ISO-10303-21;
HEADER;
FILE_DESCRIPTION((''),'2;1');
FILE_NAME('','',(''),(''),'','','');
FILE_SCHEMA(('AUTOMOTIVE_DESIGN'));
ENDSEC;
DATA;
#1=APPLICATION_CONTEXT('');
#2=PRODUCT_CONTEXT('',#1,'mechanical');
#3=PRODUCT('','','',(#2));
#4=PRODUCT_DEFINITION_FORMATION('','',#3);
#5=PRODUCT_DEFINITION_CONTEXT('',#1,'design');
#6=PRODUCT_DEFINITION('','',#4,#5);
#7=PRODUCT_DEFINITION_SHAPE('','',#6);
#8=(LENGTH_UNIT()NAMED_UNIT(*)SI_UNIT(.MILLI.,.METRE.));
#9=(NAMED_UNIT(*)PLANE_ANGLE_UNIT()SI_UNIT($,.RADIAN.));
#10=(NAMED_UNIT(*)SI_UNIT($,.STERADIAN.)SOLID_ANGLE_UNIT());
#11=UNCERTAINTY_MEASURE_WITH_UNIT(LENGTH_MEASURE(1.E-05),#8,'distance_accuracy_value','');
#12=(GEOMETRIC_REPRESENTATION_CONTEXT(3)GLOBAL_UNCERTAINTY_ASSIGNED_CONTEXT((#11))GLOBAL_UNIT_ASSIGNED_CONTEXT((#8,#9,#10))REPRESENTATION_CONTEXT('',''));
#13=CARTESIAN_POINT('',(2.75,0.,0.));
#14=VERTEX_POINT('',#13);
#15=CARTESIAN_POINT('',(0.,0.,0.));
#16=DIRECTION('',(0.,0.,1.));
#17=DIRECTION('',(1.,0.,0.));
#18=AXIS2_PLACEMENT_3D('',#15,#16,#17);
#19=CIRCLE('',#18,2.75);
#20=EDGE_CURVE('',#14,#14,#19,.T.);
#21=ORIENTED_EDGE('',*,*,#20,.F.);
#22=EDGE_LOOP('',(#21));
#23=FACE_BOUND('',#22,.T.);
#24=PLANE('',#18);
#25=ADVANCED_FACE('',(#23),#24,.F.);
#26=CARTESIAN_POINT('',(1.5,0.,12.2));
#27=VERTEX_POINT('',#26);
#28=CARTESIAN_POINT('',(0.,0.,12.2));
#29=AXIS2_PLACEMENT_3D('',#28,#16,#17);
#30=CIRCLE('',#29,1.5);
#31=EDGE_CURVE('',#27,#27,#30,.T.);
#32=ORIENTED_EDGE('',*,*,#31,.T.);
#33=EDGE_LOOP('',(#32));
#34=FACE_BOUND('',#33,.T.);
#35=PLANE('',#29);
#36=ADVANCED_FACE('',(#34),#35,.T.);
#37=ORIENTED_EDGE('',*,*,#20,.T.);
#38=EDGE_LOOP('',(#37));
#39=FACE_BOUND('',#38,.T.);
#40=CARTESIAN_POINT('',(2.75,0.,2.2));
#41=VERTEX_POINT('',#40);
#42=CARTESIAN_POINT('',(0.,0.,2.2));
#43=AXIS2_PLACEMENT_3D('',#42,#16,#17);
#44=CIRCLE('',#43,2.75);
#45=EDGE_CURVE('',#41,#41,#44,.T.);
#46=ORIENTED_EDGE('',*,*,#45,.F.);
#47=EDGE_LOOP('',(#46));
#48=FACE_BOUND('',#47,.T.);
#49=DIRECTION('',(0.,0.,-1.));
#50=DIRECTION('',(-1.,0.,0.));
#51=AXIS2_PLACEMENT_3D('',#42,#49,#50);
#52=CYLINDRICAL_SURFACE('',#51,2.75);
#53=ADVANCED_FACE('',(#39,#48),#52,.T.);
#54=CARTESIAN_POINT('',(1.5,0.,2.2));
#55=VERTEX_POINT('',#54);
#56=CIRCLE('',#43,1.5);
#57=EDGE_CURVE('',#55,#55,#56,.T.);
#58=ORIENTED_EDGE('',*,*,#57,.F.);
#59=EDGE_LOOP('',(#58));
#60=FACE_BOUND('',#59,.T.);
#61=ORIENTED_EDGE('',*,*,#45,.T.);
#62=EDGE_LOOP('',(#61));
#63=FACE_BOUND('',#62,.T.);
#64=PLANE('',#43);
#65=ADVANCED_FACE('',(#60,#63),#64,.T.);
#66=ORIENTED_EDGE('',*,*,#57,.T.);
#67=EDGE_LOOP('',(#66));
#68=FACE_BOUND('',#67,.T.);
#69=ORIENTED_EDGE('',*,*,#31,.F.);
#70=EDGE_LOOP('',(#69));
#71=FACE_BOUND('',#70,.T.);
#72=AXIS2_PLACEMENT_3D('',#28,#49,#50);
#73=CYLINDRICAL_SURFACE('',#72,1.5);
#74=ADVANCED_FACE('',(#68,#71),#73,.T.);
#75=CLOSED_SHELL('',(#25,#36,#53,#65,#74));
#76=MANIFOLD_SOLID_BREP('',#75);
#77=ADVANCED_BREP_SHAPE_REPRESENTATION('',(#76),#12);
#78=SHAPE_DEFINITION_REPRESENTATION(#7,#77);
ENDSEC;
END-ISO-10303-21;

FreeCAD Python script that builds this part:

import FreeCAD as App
import Part
import Sketcher

V = App.Vector

doc = App.newDocument("Part")
body = doc.addObject("PartDesign::Body", "Body")

sketch1 = doc.addObject("Sketcher::SketchObject", "Sketch")
body.addObject(sketch1)
sketch1.AttachmentSupport = (doc.XY_Plane, [""])
sketch1.MapMode = "FlatFace"
sketch1.addGeometry(Part.Circle(V(0, 0, 0), V(0, 0, 1), 2.8), False)
sketch1.addConstraint([
    Sketcher.Constraint("Coincident", 0, 3, -1, 1),
    Sketcher.Constraint("Diameter", 0, 5.5),
])
pad1 = doc.addObject("PartDesign::Pad", "Pad")
body.addObject(pad1)
pad1.Profile = sketch1
pad1.Length = 2.2

sketch2 = doc.addObject("Sketcher::SketchObject", "Sketch001")
body.addObject(sketch2)
sketch2.AttachmentSupport = (doc.XY_Plane, [""])
sketch2.MapMode = "FlatFace"
sketch2.AttachmentOffset = App.Placement(V(0, 0, 2.2), App.Rotation())
sketch2.addGeometry(Part.Circle(V(0, 0, 0), V(0, 0, 1), 1.5), False)
sketch2.addConstraint([
    Sketcher.Constraint("Coincident", 0, 3, -1, 1),
    Sketcher.Constraint("Diameter", 0, 3.0),
])
pad2 = doc.addObject("PartDesign::Pad", "Pad001")
body.addObject(pad2)
pad2.Profile = sketch2
pad2.Length = 10

doc.recompute()
